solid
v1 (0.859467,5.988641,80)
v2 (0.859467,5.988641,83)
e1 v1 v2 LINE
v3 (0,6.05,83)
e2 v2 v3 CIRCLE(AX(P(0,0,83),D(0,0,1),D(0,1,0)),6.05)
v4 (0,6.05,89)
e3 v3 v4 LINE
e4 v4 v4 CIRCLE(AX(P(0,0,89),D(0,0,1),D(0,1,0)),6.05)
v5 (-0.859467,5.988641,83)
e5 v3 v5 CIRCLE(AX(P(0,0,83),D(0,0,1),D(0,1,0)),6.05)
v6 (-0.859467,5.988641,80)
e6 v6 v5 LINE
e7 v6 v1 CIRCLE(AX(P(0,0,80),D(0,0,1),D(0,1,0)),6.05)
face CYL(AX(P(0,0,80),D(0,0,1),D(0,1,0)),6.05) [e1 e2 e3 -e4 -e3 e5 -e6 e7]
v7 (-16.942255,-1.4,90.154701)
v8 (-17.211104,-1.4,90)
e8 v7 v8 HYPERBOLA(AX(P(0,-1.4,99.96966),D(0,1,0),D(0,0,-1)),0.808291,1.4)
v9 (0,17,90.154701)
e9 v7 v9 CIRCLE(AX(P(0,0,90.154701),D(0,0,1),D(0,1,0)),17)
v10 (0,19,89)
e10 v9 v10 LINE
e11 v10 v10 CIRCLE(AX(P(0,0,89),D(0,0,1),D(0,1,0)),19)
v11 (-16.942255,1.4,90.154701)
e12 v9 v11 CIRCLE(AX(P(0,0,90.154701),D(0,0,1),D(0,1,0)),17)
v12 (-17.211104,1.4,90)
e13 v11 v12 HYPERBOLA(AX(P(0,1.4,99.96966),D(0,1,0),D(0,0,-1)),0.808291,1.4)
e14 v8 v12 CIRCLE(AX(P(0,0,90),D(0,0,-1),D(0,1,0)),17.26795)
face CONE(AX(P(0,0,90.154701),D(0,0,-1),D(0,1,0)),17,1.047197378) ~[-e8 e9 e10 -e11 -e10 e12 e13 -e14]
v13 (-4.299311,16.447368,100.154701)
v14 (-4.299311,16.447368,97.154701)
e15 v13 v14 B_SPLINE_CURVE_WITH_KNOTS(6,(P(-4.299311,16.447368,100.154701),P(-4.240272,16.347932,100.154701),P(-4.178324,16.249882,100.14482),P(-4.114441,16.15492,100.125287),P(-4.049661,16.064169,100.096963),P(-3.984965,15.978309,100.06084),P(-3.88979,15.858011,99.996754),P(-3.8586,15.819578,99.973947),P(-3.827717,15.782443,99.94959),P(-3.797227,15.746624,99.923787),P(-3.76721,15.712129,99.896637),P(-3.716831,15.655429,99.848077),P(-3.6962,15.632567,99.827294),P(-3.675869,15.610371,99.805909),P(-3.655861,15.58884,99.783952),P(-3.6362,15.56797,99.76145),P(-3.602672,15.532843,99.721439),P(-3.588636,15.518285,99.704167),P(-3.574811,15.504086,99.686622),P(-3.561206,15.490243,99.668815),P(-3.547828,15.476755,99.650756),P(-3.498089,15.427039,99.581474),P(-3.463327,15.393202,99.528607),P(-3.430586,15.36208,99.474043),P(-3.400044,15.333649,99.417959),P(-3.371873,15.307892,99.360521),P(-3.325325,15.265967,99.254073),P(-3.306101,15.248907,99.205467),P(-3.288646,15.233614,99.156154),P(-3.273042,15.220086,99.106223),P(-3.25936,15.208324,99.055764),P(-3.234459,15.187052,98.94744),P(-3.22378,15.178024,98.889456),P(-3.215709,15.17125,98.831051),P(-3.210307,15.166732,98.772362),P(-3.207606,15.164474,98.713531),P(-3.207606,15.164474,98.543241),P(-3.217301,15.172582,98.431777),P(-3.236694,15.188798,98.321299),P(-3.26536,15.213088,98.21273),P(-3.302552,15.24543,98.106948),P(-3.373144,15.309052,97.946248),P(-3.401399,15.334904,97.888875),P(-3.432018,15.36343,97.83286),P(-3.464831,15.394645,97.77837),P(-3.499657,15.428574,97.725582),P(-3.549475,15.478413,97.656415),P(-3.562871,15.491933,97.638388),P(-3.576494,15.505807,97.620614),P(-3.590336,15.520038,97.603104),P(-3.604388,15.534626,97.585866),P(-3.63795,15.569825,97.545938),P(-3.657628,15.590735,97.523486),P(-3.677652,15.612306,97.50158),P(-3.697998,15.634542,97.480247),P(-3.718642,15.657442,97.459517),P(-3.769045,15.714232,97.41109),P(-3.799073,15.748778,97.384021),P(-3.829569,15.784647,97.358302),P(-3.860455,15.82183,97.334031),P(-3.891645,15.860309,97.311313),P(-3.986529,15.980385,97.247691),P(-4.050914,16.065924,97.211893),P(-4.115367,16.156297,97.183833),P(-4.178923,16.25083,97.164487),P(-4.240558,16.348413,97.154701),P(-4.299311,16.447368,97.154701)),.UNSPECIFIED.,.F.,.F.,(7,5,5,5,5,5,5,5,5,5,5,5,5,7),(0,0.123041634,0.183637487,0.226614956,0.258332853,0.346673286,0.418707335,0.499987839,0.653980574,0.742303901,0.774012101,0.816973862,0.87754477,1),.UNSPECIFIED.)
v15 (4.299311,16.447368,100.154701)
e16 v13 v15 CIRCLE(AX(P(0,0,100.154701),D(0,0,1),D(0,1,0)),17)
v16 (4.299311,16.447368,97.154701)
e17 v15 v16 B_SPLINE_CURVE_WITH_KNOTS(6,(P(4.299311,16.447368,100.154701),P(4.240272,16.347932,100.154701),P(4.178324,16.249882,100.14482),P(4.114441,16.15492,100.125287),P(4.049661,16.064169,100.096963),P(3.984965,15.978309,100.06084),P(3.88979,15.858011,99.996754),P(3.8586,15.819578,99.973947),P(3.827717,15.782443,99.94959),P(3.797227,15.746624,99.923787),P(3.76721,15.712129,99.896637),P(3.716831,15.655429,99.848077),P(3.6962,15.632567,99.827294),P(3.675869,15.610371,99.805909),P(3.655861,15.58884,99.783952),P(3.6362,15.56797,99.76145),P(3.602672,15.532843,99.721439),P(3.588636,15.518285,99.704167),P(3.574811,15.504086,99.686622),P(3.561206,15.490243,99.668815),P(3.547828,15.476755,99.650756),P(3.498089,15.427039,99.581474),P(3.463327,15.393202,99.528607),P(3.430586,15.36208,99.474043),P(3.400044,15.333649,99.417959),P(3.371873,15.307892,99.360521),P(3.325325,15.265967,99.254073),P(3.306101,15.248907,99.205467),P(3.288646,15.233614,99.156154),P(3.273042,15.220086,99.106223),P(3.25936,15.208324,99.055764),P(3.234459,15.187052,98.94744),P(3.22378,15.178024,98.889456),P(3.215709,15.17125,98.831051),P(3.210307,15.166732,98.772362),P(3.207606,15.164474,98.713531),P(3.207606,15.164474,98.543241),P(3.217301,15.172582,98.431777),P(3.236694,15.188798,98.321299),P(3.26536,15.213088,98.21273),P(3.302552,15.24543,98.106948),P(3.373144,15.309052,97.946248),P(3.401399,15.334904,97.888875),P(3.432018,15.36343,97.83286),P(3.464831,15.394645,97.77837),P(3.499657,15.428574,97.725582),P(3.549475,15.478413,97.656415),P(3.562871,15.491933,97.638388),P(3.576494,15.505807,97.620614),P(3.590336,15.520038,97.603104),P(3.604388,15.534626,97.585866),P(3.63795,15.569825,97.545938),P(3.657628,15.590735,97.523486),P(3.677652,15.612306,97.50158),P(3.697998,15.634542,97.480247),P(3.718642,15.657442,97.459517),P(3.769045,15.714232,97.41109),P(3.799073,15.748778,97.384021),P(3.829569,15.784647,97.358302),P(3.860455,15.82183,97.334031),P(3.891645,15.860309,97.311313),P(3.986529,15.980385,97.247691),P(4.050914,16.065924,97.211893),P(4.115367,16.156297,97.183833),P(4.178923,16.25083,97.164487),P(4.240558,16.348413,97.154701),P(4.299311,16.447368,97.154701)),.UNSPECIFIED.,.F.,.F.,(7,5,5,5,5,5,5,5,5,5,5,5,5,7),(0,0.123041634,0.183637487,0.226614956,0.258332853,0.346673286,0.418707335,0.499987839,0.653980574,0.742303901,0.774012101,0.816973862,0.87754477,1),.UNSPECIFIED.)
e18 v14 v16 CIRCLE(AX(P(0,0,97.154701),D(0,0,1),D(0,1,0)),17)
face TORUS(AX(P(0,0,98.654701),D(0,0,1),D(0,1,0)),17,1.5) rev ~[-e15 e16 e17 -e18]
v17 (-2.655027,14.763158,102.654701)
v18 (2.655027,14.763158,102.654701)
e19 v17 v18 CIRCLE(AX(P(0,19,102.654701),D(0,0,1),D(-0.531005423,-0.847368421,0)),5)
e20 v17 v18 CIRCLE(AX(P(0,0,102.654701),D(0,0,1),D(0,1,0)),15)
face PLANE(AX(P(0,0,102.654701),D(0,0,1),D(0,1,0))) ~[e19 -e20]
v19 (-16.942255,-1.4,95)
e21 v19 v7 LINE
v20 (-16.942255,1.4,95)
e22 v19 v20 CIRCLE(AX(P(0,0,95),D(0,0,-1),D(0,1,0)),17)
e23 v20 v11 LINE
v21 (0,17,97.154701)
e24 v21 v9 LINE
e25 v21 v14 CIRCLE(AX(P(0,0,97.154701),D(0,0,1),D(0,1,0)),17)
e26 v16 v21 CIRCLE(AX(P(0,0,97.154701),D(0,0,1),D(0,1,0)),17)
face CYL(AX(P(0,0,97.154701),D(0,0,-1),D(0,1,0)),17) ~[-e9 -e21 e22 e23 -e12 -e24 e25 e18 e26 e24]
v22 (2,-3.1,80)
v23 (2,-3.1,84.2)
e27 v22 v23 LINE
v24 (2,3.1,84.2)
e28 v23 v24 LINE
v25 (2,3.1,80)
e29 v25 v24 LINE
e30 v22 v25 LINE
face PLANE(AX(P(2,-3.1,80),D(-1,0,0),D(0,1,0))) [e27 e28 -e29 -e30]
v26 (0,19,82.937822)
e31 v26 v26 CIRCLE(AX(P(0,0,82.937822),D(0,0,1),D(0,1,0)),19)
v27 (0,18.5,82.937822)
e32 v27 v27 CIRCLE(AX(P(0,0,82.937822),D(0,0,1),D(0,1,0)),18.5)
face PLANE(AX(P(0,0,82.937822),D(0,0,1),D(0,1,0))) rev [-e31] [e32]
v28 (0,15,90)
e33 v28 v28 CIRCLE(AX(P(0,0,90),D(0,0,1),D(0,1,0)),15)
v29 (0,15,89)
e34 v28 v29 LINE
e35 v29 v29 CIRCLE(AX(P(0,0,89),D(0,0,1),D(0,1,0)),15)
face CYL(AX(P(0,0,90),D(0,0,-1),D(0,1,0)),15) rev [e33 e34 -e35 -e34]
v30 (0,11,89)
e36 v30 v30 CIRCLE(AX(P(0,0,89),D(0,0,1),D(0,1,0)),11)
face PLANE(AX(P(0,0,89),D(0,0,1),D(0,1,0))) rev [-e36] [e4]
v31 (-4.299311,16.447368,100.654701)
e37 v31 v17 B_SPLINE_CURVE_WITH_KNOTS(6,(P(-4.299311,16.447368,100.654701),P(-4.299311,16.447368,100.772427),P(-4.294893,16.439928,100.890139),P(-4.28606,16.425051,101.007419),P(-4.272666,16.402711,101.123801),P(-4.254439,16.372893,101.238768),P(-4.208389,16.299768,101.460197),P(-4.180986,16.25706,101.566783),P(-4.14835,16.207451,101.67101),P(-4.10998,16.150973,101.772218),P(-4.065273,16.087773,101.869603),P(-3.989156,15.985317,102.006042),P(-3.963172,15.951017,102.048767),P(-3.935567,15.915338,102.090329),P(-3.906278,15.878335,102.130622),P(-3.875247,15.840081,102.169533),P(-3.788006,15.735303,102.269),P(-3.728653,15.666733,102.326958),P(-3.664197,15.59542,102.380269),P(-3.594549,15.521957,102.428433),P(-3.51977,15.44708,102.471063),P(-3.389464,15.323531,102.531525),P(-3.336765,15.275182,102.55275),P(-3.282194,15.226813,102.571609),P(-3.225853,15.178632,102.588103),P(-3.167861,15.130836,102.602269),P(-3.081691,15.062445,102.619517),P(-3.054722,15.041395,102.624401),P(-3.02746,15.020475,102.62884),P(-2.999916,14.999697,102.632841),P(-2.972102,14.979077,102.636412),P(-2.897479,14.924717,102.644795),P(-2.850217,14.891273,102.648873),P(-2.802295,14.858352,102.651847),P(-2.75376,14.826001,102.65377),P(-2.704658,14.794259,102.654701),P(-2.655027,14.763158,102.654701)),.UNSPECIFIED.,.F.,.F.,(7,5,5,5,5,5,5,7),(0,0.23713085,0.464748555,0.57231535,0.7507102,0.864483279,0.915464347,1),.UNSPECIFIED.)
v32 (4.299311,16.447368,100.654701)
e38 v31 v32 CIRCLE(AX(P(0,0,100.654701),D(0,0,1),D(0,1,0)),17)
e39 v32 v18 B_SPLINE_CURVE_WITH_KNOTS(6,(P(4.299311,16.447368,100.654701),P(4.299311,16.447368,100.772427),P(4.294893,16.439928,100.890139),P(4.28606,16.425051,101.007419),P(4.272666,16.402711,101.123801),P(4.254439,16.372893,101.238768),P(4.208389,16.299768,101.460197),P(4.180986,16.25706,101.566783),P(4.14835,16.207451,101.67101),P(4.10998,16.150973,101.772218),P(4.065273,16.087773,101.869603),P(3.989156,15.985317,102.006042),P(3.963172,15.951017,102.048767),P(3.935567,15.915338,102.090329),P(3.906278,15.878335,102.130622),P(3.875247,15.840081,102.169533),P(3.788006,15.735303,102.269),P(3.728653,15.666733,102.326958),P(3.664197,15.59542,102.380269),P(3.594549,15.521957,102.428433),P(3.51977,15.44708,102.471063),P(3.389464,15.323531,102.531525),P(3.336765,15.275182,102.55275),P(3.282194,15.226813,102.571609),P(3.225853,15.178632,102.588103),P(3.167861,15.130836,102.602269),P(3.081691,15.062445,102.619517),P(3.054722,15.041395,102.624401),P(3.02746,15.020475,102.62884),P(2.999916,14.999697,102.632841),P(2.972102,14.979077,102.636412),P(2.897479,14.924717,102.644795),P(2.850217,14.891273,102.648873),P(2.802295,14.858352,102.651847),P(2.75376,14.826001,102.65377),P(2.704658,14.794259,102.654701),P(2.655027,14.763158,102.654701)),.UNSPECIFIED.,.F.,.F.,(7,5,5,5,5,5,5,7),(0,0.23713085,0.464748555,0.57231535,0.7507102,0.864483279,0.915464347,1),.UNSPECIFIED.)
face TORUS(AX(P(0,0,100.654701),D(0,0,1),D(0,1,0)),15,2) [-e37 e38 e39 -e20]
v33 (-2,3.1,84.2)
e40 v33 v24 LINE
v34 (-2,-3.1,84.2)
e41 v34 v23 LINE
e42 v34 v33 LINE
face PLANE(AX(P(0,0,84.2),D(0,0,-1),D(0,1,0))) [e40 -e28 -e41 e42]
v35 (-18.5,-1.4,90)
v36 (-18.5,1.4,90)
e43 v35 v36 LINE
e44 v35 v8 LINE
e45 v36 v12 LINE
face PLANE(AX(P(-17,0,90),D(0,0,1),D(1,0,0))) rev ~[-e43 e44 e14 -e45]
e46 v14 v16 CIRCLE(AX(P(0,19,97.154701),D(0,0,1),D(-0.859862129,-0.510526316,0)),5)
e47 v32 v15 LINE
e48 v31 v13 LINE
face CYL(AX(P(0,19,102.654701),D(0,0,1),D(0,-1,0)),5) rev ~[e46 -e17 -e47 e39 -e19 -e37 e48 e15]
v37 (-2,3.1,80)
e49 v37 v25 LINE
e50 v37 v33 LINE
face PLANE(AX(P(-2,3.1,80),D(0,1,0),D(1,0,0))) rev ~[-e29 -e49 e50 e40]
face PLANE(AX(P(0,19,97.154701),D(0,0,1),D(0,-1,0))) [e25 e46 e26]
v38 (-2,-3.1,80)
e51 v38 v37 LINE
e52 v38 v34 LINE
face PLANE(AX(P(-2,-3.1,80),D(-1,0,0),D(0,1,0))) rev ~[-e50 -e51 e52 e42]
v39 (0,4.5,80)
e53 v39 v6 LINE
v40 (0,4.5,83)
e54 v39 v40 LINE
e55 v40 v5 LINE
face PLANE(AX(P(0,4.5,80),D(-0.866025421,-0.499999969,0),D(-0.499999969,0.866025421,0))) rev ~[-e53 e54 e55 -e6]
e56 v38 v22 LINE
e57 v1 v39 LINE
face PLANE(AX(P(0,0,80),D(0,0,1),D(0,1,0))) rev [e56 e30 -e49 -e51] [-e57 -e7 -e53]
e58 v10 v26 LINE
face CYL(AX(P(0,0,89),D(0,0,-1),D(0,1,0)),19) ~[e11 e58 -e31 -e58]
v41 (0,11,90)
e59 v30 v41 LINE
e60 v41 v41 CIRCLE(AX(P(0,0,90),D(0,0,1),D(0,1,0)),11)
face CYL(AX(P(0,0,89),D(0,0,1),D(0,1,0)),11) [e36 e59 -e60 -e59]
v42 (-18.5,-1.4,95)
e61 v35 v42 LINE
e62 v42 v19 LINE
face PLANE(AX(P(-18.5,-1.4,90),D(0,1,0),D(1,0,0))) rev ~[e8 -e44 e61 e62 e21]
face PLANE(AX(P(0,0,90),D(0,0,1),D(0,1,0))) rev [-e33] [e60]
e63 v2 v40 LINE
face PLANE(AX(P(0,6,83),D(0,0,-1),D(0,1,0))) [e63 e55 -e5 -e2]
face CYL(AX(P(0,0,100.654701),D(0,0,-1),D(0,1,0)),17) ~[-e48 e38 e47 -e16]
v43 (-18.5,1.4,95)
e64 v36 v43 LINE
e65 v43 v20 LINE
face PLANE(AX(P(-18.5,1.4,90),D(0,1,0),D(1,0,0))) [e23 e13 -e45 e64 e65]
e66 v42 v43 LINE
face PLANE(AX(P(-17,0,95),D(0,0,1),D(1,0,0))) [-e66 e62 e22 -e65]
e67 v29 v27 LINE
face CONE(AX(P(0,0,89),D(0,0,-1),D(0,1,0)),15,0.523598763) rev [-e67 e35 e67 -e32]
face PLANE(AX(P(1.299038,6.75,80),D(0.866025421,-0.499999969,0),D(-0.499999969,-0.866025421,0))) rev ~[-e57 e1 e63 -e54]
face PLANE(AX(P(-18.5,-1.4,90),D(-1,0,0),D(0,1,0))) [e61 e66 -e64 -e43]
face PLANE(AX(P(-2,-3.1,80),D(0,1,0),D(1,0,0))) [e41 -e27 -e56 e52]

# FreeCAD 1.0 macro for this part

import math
import FreeCAD as App
import Part
import Sketcher

V = App.Vector
Q = App.Units.Quantity


def add_polygon(sketch, points):
    """Adds a closed chain of lines whose ends are joined by coincident constraints."""
    first, n = sketch.GeometryCount, len(points)
    for a, b in zip(points, points[1:] + points[:1]):
        sketch.addGeometry(Part.LineSegment(App.Vector(*a, 0), App.Vector(*b, 0)), False)
    for i in range(n):
        sketch.addConstraint(Sketcher.Constraint("Coincident", first + i, 2, first + (i + 1) % n, 1))

doc = App.newDocument("Part")
params = doc.addObject("Spreadsheet::Sheet", "Params")
for row, (alias, value) in enumerate([
    ("sketch1_radius", "2 mm"),
    ("sketch1_radius2", "1.5 mm"),
    ("sketch1_width", "4 mm"),
    ("sketch1_width2", "15 mm"),
    ("sketch1_height", "1 mm"),
    ("revolution_angle", "360 deg"),
    ("sketch2_width", "4 mm"),
    ("sketch2_height", "6.2 mm"),
    ("pocket1_length", "4.2 mm"),
    ("sketch3_width", "3 mm"),
    ("sketch3_height", "2.8 mm"),
    ("pad1_length", "5 mm"),
    ("sketch4_diameter", "10 mm"),
    ("pocket2_length", "5.5 mm"),
    ("pocket3_length", "3 mm"),
], start=1):
    params.set(f"A{row}", alias)
    params.set(f"B{row}", "=" + value)
    params.setAlias(f"B{row}", alias)

body = doc.addObject("PartDesign::Body", "Body")

sketch1 = doc.addObject("Sketcher::SketchObject", "Sketch")
body.addObject(sketch1)
sketch1.AttachmentSupport = (doc.YZ_Plane, [""])
sketch1.MapMode = "FlatFace"
sketch1.addGeometry(Part.LineSegment(V(6.05, 9, 0), V(11, 9, 0)), False)
sketch1.addGeometry(Part.LineSegment(V(11, 9, 0), V(11, 10, 0)), False)
sketch1.addGeometry(Part.LineSegment(V(11, 10, 0), V(15, 10, 0)), False)
sketch1.addGeometry(Part.LineSegment(V(15, 10, 0), V(15, 9, 0)), False)
sketch1.addGeometry(Part.LineSegment(V(15, 9, 0), V(18.5, 2.937822, 0)), False)
sketch1.addGeometry(Part.LineSegment(V(18.5, 2.937822, 0), V(19, 2.937822, 0)), False)
sketch1.addGeometry(Part.LineSegment(V(19, 2.937822, 0), V(19, 9, 0)), False)
sketch1.addGeometry(Part.LineSegment(V(19, 9, 0), V(17, 10.154701, 0)), False)
sketch1.addGeometry(Part.LineSegment(V(17, 10.154701, 0), V(17, 17.154701, 0)), False)
sketch1.addGeometry(Part.ArcOfCircle(Part.Circle(V(17, 18.654701, 0), V(0, 0, 1), 1.5), math.radians(90), math.radians(270)), False)
sketch1.addGeometry(Part.LineSegment(V(17, 20.154701, 0), V(17, 20.654701, 0)), False)
sketch1.addGeometry(Part.ArcOfCircle(Part.Circle(V(15, 20.654701, 0), V(0, 0, 1), 2), math.radians(0.000006), math.radians(89.999994)), False)
sketch1.addGeometry(Part.LineSegment(V(15, 22.654701, 0), V(0, 22.654701, 0)), False)
sketch1.addGeometry(Part.LineSegment(V(0, 22.654701, 0), V(0, 0, 0)), False)
sketch1.addGeometry(Part.LineSegment(V(0, 0, 0), V(6.05, 0, 0)), False)
sketch1.addGeometry(Part.LineSegment(V(6.05, 0, 0), V(6.05, 9, 0)), False)
sketch1.addConstraint(Sketcher.Constraint("Coincident", 0, 2, 1, 1))
sketch1.addConstraint(Sketcher.Constraint("Coincident", 1, 2, 2, 1))
sketch1.addConstraint(Sketcher.Constraint("Coincident", 2, 2, 3, 1))
sketch1.addConstraint(Sketcher.Constraint("Coincident", 3, 2, 4, 1))
sketch1.addConstraint(Sketcher.Constraint("Coincident", 4, 2, 5, 1))
sketch1.addConstraint(Sketcher.Constraint("Coincident", 5, 2, 6, 1))
sketch1.addConstraint(Sketcher.Constraint("Coincident", 6, 2, 7, 1))
sketch1.addConstraint(Sketcher.Constraint("Coincident", 7, 2, 8, 1))
sketch1.addConstraint(Sketcher.Constraint("Coincident", 8, 2, 9, 2))
sketch1.addConstraint(Sketcher.Constraint("Coincident", 9, 1, 10, 1))
sketch1.addConstraint(Sketcher.Constraint("Tangent", 10, 2, 11, 1))
sketch1.addConstraint(Sketcher.Constraint("Tangent", 11, 2, 12, 1))
sketch1.addConstraint(Sketcher.Constraint("Coincident", 12, 2, 13, 1))
sketch1.addConstraint(Sketcher.Constraint("Coincident", 13, 2, 14, 1))
sketch1.addConstraint(Sketcher.Constraint("Coincident", 14, 2, 15, 1))
sketch1.addConstraint(Sketcher.Constraint("Coincident", 15, 2, 0, 1))
sketch1.addConstraint(Sketcher.Constraint("Horizontal", 0))
sketch1.addConstraint(Sketcher.Constraint("Vertical", 1))
sketch1.addConstraint(Sketcher.Constraint("Horizontal", 2))
sketch1.addConstraint(Sketcher.Constraint("Vertical", 3))
sketch1.addConstraint(Sketcher.Constraint("Horizontal", 5))
sketch1.addConstraint(Sketcher.Constraint("Vertical", 6))
sketch1.addConstraint(Sketcher.Constraint("Vertical", 8))
sketch1.addConstraint(Sketcher.Constraint("Vertical", 10))
sketch1.addConstraint(Sketcher.Constraint("Horizontal", 12))
sketch1.addConstraint(Sketcher.Constraint("Vertical", 13))
sketch1.addConstraint(Sketcher.Constraint("Horizontal", 14))
sketch1.addConstraint(Sketcher.Constraint("Vertical", 15))
sketch1.addConstraint(Sketcher.Constraint("Coincident", 13, 2, -1, 1))
sketch1.addConstraint(Sketcher.Constraint("Horizontal", 0, 2, 3, 2))
sketch1.addConstraint(Sketcher.Constraint("Horizontal", 3, 2, 6, 2))
sketch1.addConstraint(Sketcher.Constraint("Vertical", 11, 3, 2, 2))
sketch1.addConstraint(Sketcher.Constraint("Vertical", 9, 3, 7, 2))
sketch1.addConstraint(Sketcher.Constraint("Vertical", 8, 2, 9, 1))
sketch1.addConstraint(Sketcher.Constraint("Equal", 5, 10))
sketch1.addConstraint(Sketcher.Constraint("Radius", 11, 2.0))
sketch1.addConstraint(Sketcher.Constraint("Radius", 9, 1.5))
sketch1.addConstraint(Sketcher.Constraint("DistanceX", 2, 1, 2, 2, 4.0))
sketch1.addConstraint(Sketcher.Constraint("DistanceX", 12, 2, 12, 1, 15.0))
sketch1.addConstraint(Sketcher.Constraint("DistanceY", 1, 1, 1, 2, 1.0))
sketch1.addConstraint(Sketcher.Constraint("DistanceY", 8, 1, 8, 2, 7.0))
sketch1.addConstraint(Sketcher.Constraint("DistanceY", 15, 1, 15, 2, 9.0))
sketch1.addConstraint(Sketcher.Constraint("Angle", 4, Q("-60.000001 deg")))
sketch1.addConstraint(Sketcher.Constraint("Angle", 7, Q("149.99999 deg")))
sketch1.addConstraint(Sketcher.Constraint("Distance", 4, 7.0))
sketch1.addConstraint(Sketcher.Constraint("DistanceX", 5, 1, 5, 2, 0.5))
sketch1.addConstraint(Sketcher.Constraint("DistanceX", 0, 1, 0, 2, 4.95))
sketch1.setExpression("Constraints[35]", "Params.sketch1_radius")
sketch1.setExpression("Constraints[36]", "Params.sketch1_radius2")
sketch1.setExpression("Constraints[37]", "Params.sketch1_width")
sketch1.setExpression("Constraints[38]", "Params.sketch1_width2")
sketch1.setExpression("Constraints[39]", "Params.sketch1_height")
revolution = doc.addObject("PartDesign::Revolution", "Revolution")
body.addObject(revolution)
revolution.Profile = sketch1
revolution.ReferenceAxis = (sketch1, ["V_Axis"])
revolution.setExpression("Angle", "Params.revolution_angle")

sketch2 = doc.addObject("Sketcher::SketchObject", "Sketch001")
body.addObject(sketch2)
sketch2.AttachmentSupport = (doc.XY_Plane, [""])
sketch2.MapMode = "FlatFace"
add_polygon(sketch2, [(2, -3.1), (-2, -3.1), (-2, 3.1), (2, 3.1)])
sketch2.addConstraint(Sketcher.Constraint("Horizontal", 0))
sketch2.addConstraint(Sketcher.Constraint("Vertical", 1))
sketch2.addConstraint(Sketcher.Constraint("Horizontal", 2))
sketch2.addConstraint(Sketcher.Constraint("Vertical", 3))
sketch2.addConstraint(Sketcher.Constraint("Symmetric", 0, 2, 2, 2, -1, 1))
sketch2.addConstraint(Sketcher.Constraint("DistanceX", 0, 2, 0, 1, 4.0))
sketch2.addConstraint(Sketcher.Constraint("DistanceY", 1, 1, 1, 2, 6.2))
sketch2.setExpression("Constraints[9]", "Params.sketch2_width")
sketch2.setExpression("Constraints[10]", "Params.sketch2_height")
pocket1 = doc.addObject("PartDesign::Pocket", "Pocket")
body.addObject(pocket1)
pocket1.Profile = sketch2
pocket1.setExpression("Length", "Params.pocket1_length")
pocket1.Reversed = True

sketch3 = doc.addObject("Sketcher::SketchObject", "Sketch002")
body.addObject(sketch3)
sketch3.AttachmentSupport = (doc.XY_Plane, [""])
sketch3.MapMode = "FlatFace"
sketch3.AttachmentOffset = App.Placement(V(0, 0, 10), App.Rotation())
add_polygon(sketch3, [(-18.5, 1.4), (-18.5, -1.4), (-15.5, -1.4), (-15.5, 1.4)])
sketch3.addConstraint(Sketcher.Constraint("Vertical", 0))
sketch3.addConstraint(Sketcher.Constraint("Horizontal", 1))
sketch3.addConstraint(Sketcher.Constraint("Vertical", 2))
sketch3.addConstraint(Sketcher.Constraint("Horizontal", 3))
sketch3.addConstraint(Sketcher.Constraint("DistanceX", 1, 1, 1, 2, 3.0))
sketch3.addConstraint(Sketcher.Constraint("DistanceY", 0, 2, 0, 1, 2.8))
sketch3.addConstraint(Sketcher.Constraint("DistanceX", 0, 2, -1, 1, 18.5))
sketch3.addConstraint(Sketcher.Constraint("DistanceY", 0, 2, -1, 1, 1.4))
sketch3.setExpression("Constraints[8]", "Params.sketch3_width")
sketch3.setExpression("Constraints[9]", "Params.sketch3_height")
pad1 = doc.addObject("PartDesign::Pad", "Pad")
body.addObject(pad1)
pad1.Profile = sketch3
pad1.setExpression("Length", "Params.pad1_length")

sketch4 = doc.addObject("Sketcher::SketchObject", "Sketch003")
body.addObject(sketch4)
sketch4.AttachmentSupport = (doc.XY_Plane, [""])
sketch4.MapMode = "FlatFace"
sketch4.AttachmentOffset = App.Placement(V(0, 0, 22.654701), App.Rotation())
sketch4.addGeometry(Part.Circle(V(0, 19, 0), V(0, 0, 1), 5), False)
sketch4.addConstraint(Sketcher.Constraint("PointOnObject", 0, 3, -2))
sketch4.addConstraint(Sketcher.Constraint("Diameter", 0, 10.0))
sketch4.addConstraint(Sketcher.Constraint("DistanceY", -1, 1, 0, 3, 19.0))
sketch4.setExpression("Constraints[1]", "Params.sketch4_diameter")
pocket2 = doc.addObject("PartDesign::Pocket", "Pocket001")
body.addObject(pocket2)
pocket2.Profile = sketch4
pocket2.setExpression("Length", "Params.pocket2_length")

sketch5 = doc.addObject("Sketcher::SketchObject", "Sketch004")
body.addObject(sketch5)
sketch5.AttachmentSupport = (doc.XY_Plane, [""])
sketch5.MapMode = "FlatFace"
add_polygon(sketch5, [(1.299038, 6.75), (0, 4.5), (-1.299038, 6.75)])
sketch5.addConstraint(Sketcher.Constraint("Horizontal", 2))
sketch5.addConstraint(Sketcher.Constraint("PointOnObject", 0, 2, -2))
sketch5.addConstraint(Sketcher.Constraint("Equal", 0, 1))
sketch5.addConstraint(Sketcher.Constraint("Angle", 0, Q("-119.999998 deg")))
sketch5.addConstraint(Sketcher.Constraint("DistanceY", -1, 1, 0, 2, 4.5))
sketch5.addConstraint(Sketcher.Constraint("DistanceY", -1, 1, 1, 2, 6.75))
pocket3 = doc.addObject("PartDesign::Pocket", "Pocket002")
body.addObject(pocket3)
pocket3.Profile = sketch5
pocket3.setExpression("Length", "Params.pocket3_length")
pocket3.Reversed = True
body2 = doc.addObject("PartDesign::Body", "Body001")
doc.recompute()

body.Placement = App.Placement(V(0, 0, 80), App.Rotation(V(0, 0, 1), 0))
boolean = doc.addObject("PartDesign::Boolean", "Boolean")
body2.addObject(boolean)
boolean.Type = "Fuse"
boolean.addObjects([body])

doc.recompute()
